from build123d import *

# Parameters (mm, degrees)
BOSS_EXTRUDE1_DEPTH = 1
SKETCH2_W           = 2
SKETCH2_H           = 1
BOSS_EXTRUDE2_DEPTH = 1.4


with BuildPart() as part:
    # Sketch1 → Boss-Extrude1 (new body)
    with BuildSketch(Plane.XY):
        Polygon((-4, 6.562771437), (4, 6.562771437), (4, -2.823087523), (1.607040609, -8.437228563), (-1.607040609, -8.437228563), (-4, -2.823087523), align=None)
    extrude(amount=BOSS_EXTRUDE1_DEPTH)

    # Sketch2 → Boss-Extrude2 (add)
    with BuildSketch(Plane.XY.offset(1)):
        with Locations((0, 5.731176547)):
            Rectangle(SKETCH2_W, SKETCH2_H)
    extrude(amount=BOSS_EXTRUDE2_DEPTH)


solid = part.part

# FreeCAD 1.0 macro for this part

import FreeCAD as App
import Part
import Sketcher

V = App.Vector
Q = App.Units.Quantity


def add_polygon(sketch, points):
    """Adds a closed chain of lines whose ends are joined by coincident constraints."""
    first, n = sketch.GeometryCount, len(points)
    for a, b in zip(points, points[1:] + points[:1]):
        sketch.addGeometry(Part.LineSegment(App.Vector(*a, 0), App.Vector(*b, 0)), False)
    for i in range(n):
        sketch.addConstraint(Sketcher.Constraint("Coincident", first + i, 2, first + (i + 1) % n, 1))

doc = App.newDocument("Part")
params = doc.addObject("Spreadsheet::Sheet", "Params")
for row, (alias, value) in enumerate([
    ("sketch1_width", "8 mm"),
    ("pad1_length", "1 mm"),
    ("sketch2_width", "2 mm"),
    ("sketch2_height", "1 mm"),
    ("pad2_length", "1.4 mm"),
], start=1):
    params.set(f"A{row}", alias)
    params.set(f"B{row}", "=" + value)
    params.setAlias(f"B{row}", alias)

body = doc.addObject("PartDesign::Body", "Body")

# Sketch on XY plane
sketch1 = body.newObject("Sketcher::SketchObject", "Sketch")
sketch1.AttachmentSupport = (doc.getObject("XY_Plane"), [""])
sketch1.MapMode = "FlatFace"
add_polygon(sketch1, [(4, 6.6), (-4, 6.6), (-4, -2.8), (-1.6, -8.4), (1.6, -8.4), (4, -2.8)])  # lines 0-5
sketch1.addConstraint(Sketcher.Constraint("Horizontal", 0))
sketch1.addConstraint(Sketcher.Constraint("Vertical", 1))
sketch1.addConstraint(Sketcher.Constraint("Horizontal", 3))
sketch1.addConstraint(Sketcher.Constraint("Vertical", 5))
sketch1.addConstraint(Sketcher.Constraint("Symmetric", 1, 2, 4, 2, -2))
sketch1.addConstraint(Sketcher.Constraint("Equal", 2, 4))
sketch1.addConstraint(Sketcher.Constraint("DistanceX", 0, 2, 0, 1, Q("8 mm")))
sketch1.addConstraint(Sketcher.Constraint("DistanceY", 2, 2, 0, 2, Q("15 mm")))
sketch1.addConstraint(Sketcher.Constraint("DistanceX", 3, 1, 3, 2, Q("3.214081 mm")))
sketch1.addConstraint(Sketcher.Constraint("DistanceY", 1, 2, 1, 1, Q("9.385859 mm")))
sketch1.addConstraint(Sketcher.Constraint("DistanceY", -1, 1, 0, 2, Q("6.562771 mm")))
sketch1.setExpression("Constraints[12]", "Params.sketch1_width")
pad1 = body.newObject("PartDesign::Pad", "Pad")
pad1.Profile = sketch1
pad1.setExpression("Length", "Params.pad1_length")

# Sketch on XY plane
sketch2 = body.newObject("Sketcher::SketchObject", "Sketch001")
sketch2.AttachmentSupport = (doc.getObject("XY_Plane"), [""])
sketch2.MapMode = "FlatFace"
sketch2.AttachmentOffset = App.Placement(V(0, 0, 1), App.Rotation())
add_polygon(sketch2, [(-1, 6.2), (-1, 5.2), (1, 5.2), (1, 6.2)])  # lines 0-3
sketch2.addConstraint(Sketcher.Constraint("Vertical", 0))
sketch2.addConstraint(Sketcher.Constraint("Horizontal", 1))
sketch2.addConstraint(Sketcher.Constraint("Vertical", 2))
sketch2.addConstraint(Sketcher.Constraint("Horizontal", 3))
sketch2.addConstraint(Sketcher.Constraint("DistanceX", 1, 1, 1, 2, Q("2 mm")))
sketch2.addConstraint(Sketcher.Constraint("DistanceY", 0, 2, 0, 1, Q("1 mm")))
sketch2.addConstraint(Sketcher.Constraint("DistanceX", 0, 2, -1, 1, Q("1 mm")))
sketch2.addConstraint(Sketcher.Constraint("DistanceY", -1, 1, 0, 2, Q("5.231177 mm")))
sketch2.setExpression("Constraints[8]", "Params.sketch2_width")
sketch2.setExpression("Constraints[9]", "Params.sketch2_height")
pad2 = body.newObject("PartDesign::Pad", "Pad001")
pad2.Profile = sketch2
pad2.setExpression("Length", "Params.pad2_length")

doc.recompute()
